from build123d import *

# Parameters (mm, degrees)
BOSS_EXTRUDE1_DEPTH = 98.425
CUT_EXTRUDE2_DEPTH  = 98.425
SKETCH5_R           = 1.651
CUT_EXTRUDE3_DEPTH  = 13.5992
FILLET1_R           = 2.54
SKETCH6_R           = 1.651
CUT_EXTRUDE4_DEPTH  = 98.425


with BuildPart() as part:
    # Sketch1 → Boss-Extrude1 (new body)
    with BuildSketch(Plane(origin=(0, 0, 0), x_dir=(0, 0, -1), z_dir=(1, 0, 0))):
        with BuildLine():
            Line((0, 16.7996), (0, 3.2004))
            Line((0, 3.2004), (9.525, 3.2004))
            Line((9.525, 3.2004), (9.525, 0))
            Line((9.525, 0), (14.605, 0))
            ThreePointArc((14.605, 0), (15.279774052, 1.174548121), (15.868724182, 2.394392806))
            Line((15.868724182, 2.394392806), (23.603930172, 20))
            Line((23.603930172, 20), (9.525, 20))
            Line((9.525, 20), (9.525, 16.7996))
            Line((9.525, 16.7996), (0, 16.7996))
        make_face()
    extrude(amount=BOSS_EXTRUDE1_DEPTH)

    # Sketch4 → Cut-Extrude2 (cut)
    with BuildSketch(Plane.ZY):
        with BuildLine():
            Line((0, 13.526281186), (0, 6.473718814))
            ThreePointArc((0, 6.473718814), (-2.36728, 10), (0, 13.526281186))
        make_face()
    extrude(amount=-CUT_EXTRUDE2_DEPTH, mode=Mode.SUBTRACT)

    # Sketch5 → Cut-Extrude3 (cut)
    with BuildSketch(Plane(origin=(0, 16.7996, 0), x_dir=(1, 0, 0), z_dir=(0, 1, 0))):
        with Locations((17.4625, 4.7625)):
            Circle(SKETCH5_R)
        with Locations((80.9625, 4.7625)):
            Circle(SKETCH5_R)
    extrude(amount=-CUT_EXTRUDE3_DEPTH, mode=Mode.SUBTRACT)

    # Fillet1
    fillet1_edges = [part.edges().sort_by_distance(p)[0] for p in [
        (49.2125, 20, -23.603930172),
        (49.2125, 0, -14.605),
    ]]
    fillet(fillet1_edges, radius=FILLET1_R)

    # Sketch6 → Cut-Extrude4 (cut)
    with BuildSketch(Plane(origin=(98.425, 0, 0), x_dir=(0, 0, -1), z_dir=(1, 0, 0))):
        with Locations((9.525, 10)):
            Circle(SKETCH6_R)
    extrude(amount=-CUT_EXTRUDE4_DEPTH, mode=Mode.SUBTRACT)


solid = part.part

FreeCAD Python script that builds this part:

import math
import FreeCAD as App
import Part
import Sketcher
Q = App.Units.Quantity


def edges_at(feature, points):
    """Names of the edges that pass closest to the given points."""
    edges = feature.Shape.Edges
    near = lambda p: min(range(len(edges)), key=lambda i: edges[i].distToShape(Part.Vertex(*p))[0])
    return sorted({f"Edge{near(p) + 1}" for p in points})

doc = App.newDocument("Part")
body = doc.addObject("PartDesign::Body", "Body")

# Sketch on YZ plane
sketch1 = doc.addObject("Sketcher::SketchObject", "Sketch")
body.addObject(sketch1)
sketch1.AttachmentSupport = (doc.YZ_Plane, [""])
sketch1.MapMode = "FlatFace"
sketch1.addGeometry([
    Part.LineSegment(App.Vector(16.8, 0, 0), App.Vector(3.2, 0, 0)),  # 0
    Part.LineSegment(App.Vector(3.2, 0, 0), App.Vector(3.2, -9.5, 0)),  # 1
    Part.LineSegment(App.Vector(3.2, -9.5, 0), App.Vector(0, -9.5, 0)),  # 2
    Part.LineSegment(App.Vector(0, -9.5, 0), App.Vector(0, -14.6, 0)),  # 3
    Part.ArcOfCircle(Part.Circle(App.Vector(10, 1.4, 0), App.Vector(0, 0, 1), 18.9), math.radians(-121.93), math.radians(-113.72)),  # 4
    Part.LineSegment(App.Vector(2.4, -15.9, 0), App.Vector(20, -23.6, 0)),  # 5
    Part.LineSegment(App.Vector(20, -23.6, 0), App.Vector(20, -9.5, 0)),  # 6
    Part.LineSegment(App.Vector(20, -9.5, 0), App.Vector(16.8, -9.5, 0)),  # 7
    Part.LineSegment(App.Vector(16.8, -9.5, 0), App.Vector(16.8, 0, 0)),  # 8
], False)
sketch1.addConstraint([
    Sketcher.Constraint("Coincident", 0, 2, 1, 1),
    Sketcher.Constraint("Coincident", 1, 2, 2, 1),
    Sketcher.Constraint("Coincident", 2, 2, 3, 1),
    Sketcher.Constraint("Coincident", 3, 2, 4, 1),
    Sketcher.Constraint("Tangent", 4, 2, 5, 1),
    Sketcher.Constraint("Coincident", 5, 2, 6, 1),
    Sketcher.Constraint("Coincident", 6, 2, 7, 1),
    Sketcher.Constraint("Coincident", 7, 2, 8, 1),
    Sketcher.Constraint("Coincident", 8, 2, 0, 1),
    Sketcher.Constraint("Horizontal", 0),
    Sketcher.Constraint("Vertical", 1),
    Sketcher.Constraint("Horizontal", 2),
    Sketcher.Constraint("Vertical", 3),
    Sketcher.Constraint("Vertical", 6),
    Sketcher.Constraint("Horizontal", 7),
    Sketcher.Constraint("Vertical", 8),
    Sketcher.Constraint("PointOnObject", 0, 2, -1),
    Sketcher.Constraint("PointOnObject", 2, 2, -2),
    Sketcher.Constraint("Horizontal", 2, 2, 6, 2),
    Sketcher.Constraint("Equal", 2, 7),
    Sketcher.Constraint("DistanceY", 3, 2, 3, 1, Q("0.2 in")),
    Sketcher.Constraint("Radius", 4, Q("0.7444 in")),
    Sketcher.Constraint("DistanceX", 2, 2, 2, 1, Q("0.126 in")),
    Sketcher.Constraint("DistanceY", 1, 2, 1, 1, Q("0.375 in")),
    Sketcher.Constraint("DistanceX", 0, 2, 0, 1, Q("13.5992 mm")),
    Sketcher.Constraint("DistanceY", 6, 1, 6, 2, Q("14.07893 mm")),
    Sketcher.Constraint("DistanceX", -1, 1, 4, 3, Q("10 mm")),
])
pad1 = doc.addObject("PartDesign::Pad", "Pad")
body.addObject(pad1)
pad1.Profile = sketch1
pad1.Length = Q("3.875 in")

# Sketch on YZ plane
sketch2 = doc.addObject("Sketcher::SketchObject", "Sketch001")
body.addObject(sketch2)
sketch2.AttachmentSupport = (doc.YZ_Plane, [""])
sketch2.MapMode = "FlatFace"
sketch2.addGeometry([
    Part.LineSegment(App.Vector(6.5, 0, 0), App.Vector(13.5, 0, 0)),
    Part.ArcOfCircle(Part.Circle(App.Vector(10, 1.4, 0), App.Vector(0, 0, 1), 3.8), math.radians(-158), math.radians(-22)),
], False)
sketch2.addConstraint([
    Sketcher.Constraint("Coincident", 0, 1, 1, 1),
    Sketcher.Constraint("Coincident", 1, 2, 0, 2),
    Sketcher.Constraint("Horizontal", 0),
    Sketcher.Constraint("PointOnObject", 0, 1, -1),
    Sketcher.Constraint("Radius", 1, Q("0.15 in")),
    Sketcher.Constraint("DistanceY", -1, 1, 1, 3, Q("0.0568 in")),
    Sketcher.Constraint("DistanceX", -1, 1, 1, 3, Q("10 mm")),
])
pocket1 = doc.addObject("PartDesign::Pocket", "Pocket")
body.addObject(pocket1)
pocket1.Profile = sketch2
pocket1.Length = Q("3.875 in")
pocket1.Reversed = True

# Sketch on XZ plane
sketch3 = doc.addObject("Sketcher::SketchObject", "Sketch002")
body.addObject(sketch3)
sketch3.AttachmentSupport = (doc.XZ_Plane, [""])
sketch3.MapMode = "FlatFace"
sketch3.AttachmentOffset = App.Placement(App.Vector(0, 0, -16.7996), App.Rotation())
sketch3.addGeometry([
    Part.Circle(App.Vector(17.5, -4.8, 0), App.Vector(0, 0, 1), 1.7),
    Part.Circle(App.Vector(81, -4.8, 0), App.Vector(0, 0, 1), 1.7),
], False)
sketch3.addConstraint([
    Sketcher.Constraint("Equal", 0, 1),
    Sketcher.Constraint("Horizontal", 0, 3, 1, 3),
    Sketcher.Constraint("Diameter", 0, Q("0.13 in")),
    Sketcher.Constraint("DistanceX", 0, 3, 1, 3, Q("2.5 in")),
    Sketcher.Constraint("DistanceX", -1, 1, 0, 3, Q("0.6875 in")),
    Sketcher.Constraint("DistanceY", 0, 3, -1, 1, Q("0.1875 in")),
])
pocket2 = doc.addObject("PartDesign::Pocket", "Pocket001")
body.addObject(pocket2)
pocket2.Profile = sketch3
pocket2.Length = 13.5992
pocket2.Reversed = True
doc.recompute()

fillet = doc.addObject("PartDesign::Fillet", "Fillet")
body.addObject(fillet)
fillet.Base = (pocket2, edges_at(pocket2, [(49.212, 20, -23.604), (49.212, 0, -14.605)]))
fillet.Radius = Q("0.1 in")

# Sketch on YZ plane
sketch4 = doc.addObject("Sketcher::SketchObject", "Sketch003")
body.addObject(sketch4)
sketch4.AttachmentSupport = (doc.YZ_Plane, [""])
sketch4.MapMode = "FlatFace"
sketch4.AttachmentOffset = App.Placement(App.Vector(0, 0, 3.875 * 25.4), App.Rotation())
sketch4.addGeometry(Part.Circle(App.Vector(10, -9.5, 0), App.Vector(0, 0, 1), 1.7), False)
sketch4.addConstraint([
    Sketcher.Constraint("Diameter", 0, Q("0.13 in")),
    Sketcher.Constraint("DistanceY", 0, 3, -1, 1, Q("0.375 in")),
    Sketcher.Constraint("DistanceX", -1, 1, 0, 3, Q("10 mm")),
])
pocket3 = doc.addObject("PartDesign::Pocket", "Pocket002")
body.addObject(pocket3)
pocket3.Profile = sketch4
pocket3.Length = Q("3.875 in")

doc.recompute()
